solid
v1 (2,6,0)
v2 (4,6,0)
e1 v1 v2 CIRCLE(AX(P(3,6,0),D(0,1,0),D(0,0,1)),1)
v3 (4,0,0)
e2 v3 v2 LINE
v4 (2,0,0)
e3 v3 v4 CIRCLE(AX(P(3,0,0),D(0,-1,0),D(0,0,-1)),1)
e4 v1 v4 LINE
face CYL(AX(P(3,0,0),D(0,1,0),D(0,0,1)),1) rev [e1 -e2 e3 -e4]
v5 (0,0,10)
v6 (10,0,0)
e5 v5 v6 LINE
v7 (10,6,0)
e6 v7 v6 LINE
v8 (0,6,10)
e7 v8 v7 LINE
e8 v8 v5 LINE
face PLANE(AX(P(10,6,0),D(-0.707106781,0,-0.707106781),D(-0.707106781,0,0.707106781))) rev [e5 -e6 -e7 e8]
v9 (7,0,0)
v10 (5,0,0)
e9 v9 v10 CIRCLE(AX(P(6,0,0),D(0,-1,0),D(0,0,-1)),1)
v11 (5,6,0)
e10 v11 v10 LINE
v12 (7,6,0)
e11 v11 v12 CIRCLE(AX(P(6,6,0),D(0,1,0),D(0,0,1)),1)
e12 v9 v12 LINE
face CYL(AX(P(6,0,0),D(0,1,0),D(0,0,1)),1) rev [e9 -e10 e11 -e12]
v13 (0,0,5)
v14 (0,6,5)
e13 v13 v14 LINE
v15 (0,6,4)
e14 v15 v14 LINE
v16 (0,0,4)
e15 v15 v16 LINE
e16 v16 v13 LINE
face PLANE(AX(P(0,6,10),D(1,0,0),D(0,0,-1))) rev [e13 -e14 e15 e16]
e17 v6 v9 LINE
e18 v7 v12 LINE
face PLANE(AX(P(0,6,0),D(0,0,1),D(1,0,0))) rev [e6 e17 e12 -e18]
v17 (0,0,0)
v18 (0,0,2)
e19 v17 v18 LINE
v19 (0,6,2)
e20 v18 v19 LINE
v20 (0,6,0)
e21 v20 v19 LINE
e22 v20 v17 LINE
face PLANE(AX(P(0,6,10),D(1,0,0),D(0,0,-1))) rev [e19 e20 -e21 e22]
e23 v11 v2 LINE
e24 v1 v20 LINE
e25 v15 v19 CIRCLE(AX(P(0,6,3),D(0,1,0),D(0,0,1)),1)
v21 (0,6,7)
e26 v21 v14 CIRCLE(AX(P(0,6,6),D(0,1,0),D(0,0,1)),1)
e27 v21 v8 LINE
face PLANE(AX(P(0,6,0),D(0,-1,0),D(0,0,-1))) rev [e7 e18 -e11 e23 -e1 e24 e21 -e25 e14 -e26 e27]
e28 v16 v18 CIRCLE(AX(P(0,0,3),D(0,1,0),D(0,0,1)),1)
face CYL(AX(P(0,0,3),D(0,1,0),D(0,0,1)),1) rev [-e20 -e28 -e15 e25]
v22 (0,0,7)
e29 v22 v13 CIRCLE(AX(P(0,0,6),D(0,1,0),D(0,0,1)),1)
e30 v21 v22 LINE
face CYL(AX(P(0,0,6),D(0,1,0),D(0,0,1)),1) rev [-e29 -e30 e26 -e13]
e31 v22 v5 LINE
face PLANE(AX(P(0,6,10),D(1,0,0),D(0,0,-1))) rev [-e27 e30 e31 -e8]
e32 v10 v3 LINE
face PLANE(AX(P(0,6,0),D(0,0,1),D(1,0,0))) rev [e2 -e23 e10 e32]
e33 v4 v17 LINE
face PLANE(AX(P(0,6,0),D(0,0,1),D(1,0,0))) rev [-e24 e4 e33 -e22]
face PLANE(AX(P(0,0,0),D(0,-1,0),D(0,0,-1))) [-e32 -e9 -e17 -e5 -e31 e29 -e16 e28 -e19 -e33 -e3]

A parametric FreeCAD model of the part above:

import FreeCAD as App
import Part
import Sketcher
from FreeCAD import Vector

doc = App.newDocument("Part")
body = doc.addObject("PartDesign::Body", "Body")

sketch1 = body.newObject("Sketcher::SketchObject", "Sketch")
sketch1.AttachmentSupport = (doc.getObject("XZ_Plane"), [""])
sketch1.MapMode = "FlatFace"
sketch1.addGeometry([
    Part.LineSegment(Vector(10, 0, 0), Vector(0, 0, 0)),
    Part.LineSegment(Vector(0, 0, 0), Vector(0, 10, 0)),
    Part.LineSegment(Vector(0, 10, 0), Vector(10, 0, 0)),
], False)
sketch1.addConstraint([
    Sketcher.Constraint("Coincident", 0, 2, 1, 1),
    Sketcher.Constraint("Coincident", 1, 2, 2, 1),
    Sketcher.Constraint("Coincident", 2, 2, 0, 1),
    Sketcher.Constraint("Horizontal", 0),
    Sketcher.Constraint("Vertical", 1),
    Sketcher.Constraint("Coincident", 0, 2, -1, 1),
    Sketcher.Constraint("Equal", 0, 1),
    Sketcher.Constraint("DistanceX", 0, 2, 0, 1, 10.0),
])
pad1 = body.newObject("PartDesign::Pad", "Pad")
pad1.Profile = sketch1
pad1.Length = 6
pad1.Reversed = True

sketch2 = body.newObject("Sketcher::SketchObject", "Sketch001")
sketch2.AttachmentSupport = (doc.getObject("XZ_Plane"), [""])
sketch2.MapMode = "FlatFace"
sketch2.AttachmentOffset = App.Placement(Vector(0, 0, -6), App.Rotation())
sketch2.addGeometry([
    Part.Circle(Vector(0, 6, 0), Vector(0, 0, 1), 1),
    Part.Circle(Vector(0, 3, 0), Vector(0, 0, 1), 1),
    Part.Circle(Vector(3, 0, 0), Vector(0, 0, 1), 1),
    Part.Circle(Vector(6, 0, 0), Vector(0, 0, 1), 1),
], False)
sketch2.addConstraint([
    Sketcher.Constraint("Equal", 0, 1),
    Sketcher.Constraint("Equal", 1, 2),
    Sketcher.Constraint("Equal", 2, 3),
    Sketcher.Constraint("PointOnObject", 0, 3, -2),
    Sketcher.Constraint("PointOnObject", 1, 3, -2),
    Sketcher.Constraint("PointOnObject", 2, 3, -1),
    Sketcher.Constraint("PointOnObject", 3, 3, -1),
    Sketcher.Constraint("Diameter", 0, 2.0),
    Sketcher.Constraint("DistanceY", -1, 1, 0, 3, 6.0),
    Sketcher.Constraint("DistanceY", -1, 1, 1, 3, 3.0),
    Sketcher.Constraint("DistanceX", -1, 1, 2, 3, 3.0),
    Sketcher.Constraint("DistanceX", -1, 1, 3, 3, 6.0),
])
pocket1 = body.newObject("PartDesign::Pocket", "Pocket")
pocket1.Profile = sketch2
pocket1.Type = "ThroughAll"
pocket1.Reversed = True

doc.recompute()
